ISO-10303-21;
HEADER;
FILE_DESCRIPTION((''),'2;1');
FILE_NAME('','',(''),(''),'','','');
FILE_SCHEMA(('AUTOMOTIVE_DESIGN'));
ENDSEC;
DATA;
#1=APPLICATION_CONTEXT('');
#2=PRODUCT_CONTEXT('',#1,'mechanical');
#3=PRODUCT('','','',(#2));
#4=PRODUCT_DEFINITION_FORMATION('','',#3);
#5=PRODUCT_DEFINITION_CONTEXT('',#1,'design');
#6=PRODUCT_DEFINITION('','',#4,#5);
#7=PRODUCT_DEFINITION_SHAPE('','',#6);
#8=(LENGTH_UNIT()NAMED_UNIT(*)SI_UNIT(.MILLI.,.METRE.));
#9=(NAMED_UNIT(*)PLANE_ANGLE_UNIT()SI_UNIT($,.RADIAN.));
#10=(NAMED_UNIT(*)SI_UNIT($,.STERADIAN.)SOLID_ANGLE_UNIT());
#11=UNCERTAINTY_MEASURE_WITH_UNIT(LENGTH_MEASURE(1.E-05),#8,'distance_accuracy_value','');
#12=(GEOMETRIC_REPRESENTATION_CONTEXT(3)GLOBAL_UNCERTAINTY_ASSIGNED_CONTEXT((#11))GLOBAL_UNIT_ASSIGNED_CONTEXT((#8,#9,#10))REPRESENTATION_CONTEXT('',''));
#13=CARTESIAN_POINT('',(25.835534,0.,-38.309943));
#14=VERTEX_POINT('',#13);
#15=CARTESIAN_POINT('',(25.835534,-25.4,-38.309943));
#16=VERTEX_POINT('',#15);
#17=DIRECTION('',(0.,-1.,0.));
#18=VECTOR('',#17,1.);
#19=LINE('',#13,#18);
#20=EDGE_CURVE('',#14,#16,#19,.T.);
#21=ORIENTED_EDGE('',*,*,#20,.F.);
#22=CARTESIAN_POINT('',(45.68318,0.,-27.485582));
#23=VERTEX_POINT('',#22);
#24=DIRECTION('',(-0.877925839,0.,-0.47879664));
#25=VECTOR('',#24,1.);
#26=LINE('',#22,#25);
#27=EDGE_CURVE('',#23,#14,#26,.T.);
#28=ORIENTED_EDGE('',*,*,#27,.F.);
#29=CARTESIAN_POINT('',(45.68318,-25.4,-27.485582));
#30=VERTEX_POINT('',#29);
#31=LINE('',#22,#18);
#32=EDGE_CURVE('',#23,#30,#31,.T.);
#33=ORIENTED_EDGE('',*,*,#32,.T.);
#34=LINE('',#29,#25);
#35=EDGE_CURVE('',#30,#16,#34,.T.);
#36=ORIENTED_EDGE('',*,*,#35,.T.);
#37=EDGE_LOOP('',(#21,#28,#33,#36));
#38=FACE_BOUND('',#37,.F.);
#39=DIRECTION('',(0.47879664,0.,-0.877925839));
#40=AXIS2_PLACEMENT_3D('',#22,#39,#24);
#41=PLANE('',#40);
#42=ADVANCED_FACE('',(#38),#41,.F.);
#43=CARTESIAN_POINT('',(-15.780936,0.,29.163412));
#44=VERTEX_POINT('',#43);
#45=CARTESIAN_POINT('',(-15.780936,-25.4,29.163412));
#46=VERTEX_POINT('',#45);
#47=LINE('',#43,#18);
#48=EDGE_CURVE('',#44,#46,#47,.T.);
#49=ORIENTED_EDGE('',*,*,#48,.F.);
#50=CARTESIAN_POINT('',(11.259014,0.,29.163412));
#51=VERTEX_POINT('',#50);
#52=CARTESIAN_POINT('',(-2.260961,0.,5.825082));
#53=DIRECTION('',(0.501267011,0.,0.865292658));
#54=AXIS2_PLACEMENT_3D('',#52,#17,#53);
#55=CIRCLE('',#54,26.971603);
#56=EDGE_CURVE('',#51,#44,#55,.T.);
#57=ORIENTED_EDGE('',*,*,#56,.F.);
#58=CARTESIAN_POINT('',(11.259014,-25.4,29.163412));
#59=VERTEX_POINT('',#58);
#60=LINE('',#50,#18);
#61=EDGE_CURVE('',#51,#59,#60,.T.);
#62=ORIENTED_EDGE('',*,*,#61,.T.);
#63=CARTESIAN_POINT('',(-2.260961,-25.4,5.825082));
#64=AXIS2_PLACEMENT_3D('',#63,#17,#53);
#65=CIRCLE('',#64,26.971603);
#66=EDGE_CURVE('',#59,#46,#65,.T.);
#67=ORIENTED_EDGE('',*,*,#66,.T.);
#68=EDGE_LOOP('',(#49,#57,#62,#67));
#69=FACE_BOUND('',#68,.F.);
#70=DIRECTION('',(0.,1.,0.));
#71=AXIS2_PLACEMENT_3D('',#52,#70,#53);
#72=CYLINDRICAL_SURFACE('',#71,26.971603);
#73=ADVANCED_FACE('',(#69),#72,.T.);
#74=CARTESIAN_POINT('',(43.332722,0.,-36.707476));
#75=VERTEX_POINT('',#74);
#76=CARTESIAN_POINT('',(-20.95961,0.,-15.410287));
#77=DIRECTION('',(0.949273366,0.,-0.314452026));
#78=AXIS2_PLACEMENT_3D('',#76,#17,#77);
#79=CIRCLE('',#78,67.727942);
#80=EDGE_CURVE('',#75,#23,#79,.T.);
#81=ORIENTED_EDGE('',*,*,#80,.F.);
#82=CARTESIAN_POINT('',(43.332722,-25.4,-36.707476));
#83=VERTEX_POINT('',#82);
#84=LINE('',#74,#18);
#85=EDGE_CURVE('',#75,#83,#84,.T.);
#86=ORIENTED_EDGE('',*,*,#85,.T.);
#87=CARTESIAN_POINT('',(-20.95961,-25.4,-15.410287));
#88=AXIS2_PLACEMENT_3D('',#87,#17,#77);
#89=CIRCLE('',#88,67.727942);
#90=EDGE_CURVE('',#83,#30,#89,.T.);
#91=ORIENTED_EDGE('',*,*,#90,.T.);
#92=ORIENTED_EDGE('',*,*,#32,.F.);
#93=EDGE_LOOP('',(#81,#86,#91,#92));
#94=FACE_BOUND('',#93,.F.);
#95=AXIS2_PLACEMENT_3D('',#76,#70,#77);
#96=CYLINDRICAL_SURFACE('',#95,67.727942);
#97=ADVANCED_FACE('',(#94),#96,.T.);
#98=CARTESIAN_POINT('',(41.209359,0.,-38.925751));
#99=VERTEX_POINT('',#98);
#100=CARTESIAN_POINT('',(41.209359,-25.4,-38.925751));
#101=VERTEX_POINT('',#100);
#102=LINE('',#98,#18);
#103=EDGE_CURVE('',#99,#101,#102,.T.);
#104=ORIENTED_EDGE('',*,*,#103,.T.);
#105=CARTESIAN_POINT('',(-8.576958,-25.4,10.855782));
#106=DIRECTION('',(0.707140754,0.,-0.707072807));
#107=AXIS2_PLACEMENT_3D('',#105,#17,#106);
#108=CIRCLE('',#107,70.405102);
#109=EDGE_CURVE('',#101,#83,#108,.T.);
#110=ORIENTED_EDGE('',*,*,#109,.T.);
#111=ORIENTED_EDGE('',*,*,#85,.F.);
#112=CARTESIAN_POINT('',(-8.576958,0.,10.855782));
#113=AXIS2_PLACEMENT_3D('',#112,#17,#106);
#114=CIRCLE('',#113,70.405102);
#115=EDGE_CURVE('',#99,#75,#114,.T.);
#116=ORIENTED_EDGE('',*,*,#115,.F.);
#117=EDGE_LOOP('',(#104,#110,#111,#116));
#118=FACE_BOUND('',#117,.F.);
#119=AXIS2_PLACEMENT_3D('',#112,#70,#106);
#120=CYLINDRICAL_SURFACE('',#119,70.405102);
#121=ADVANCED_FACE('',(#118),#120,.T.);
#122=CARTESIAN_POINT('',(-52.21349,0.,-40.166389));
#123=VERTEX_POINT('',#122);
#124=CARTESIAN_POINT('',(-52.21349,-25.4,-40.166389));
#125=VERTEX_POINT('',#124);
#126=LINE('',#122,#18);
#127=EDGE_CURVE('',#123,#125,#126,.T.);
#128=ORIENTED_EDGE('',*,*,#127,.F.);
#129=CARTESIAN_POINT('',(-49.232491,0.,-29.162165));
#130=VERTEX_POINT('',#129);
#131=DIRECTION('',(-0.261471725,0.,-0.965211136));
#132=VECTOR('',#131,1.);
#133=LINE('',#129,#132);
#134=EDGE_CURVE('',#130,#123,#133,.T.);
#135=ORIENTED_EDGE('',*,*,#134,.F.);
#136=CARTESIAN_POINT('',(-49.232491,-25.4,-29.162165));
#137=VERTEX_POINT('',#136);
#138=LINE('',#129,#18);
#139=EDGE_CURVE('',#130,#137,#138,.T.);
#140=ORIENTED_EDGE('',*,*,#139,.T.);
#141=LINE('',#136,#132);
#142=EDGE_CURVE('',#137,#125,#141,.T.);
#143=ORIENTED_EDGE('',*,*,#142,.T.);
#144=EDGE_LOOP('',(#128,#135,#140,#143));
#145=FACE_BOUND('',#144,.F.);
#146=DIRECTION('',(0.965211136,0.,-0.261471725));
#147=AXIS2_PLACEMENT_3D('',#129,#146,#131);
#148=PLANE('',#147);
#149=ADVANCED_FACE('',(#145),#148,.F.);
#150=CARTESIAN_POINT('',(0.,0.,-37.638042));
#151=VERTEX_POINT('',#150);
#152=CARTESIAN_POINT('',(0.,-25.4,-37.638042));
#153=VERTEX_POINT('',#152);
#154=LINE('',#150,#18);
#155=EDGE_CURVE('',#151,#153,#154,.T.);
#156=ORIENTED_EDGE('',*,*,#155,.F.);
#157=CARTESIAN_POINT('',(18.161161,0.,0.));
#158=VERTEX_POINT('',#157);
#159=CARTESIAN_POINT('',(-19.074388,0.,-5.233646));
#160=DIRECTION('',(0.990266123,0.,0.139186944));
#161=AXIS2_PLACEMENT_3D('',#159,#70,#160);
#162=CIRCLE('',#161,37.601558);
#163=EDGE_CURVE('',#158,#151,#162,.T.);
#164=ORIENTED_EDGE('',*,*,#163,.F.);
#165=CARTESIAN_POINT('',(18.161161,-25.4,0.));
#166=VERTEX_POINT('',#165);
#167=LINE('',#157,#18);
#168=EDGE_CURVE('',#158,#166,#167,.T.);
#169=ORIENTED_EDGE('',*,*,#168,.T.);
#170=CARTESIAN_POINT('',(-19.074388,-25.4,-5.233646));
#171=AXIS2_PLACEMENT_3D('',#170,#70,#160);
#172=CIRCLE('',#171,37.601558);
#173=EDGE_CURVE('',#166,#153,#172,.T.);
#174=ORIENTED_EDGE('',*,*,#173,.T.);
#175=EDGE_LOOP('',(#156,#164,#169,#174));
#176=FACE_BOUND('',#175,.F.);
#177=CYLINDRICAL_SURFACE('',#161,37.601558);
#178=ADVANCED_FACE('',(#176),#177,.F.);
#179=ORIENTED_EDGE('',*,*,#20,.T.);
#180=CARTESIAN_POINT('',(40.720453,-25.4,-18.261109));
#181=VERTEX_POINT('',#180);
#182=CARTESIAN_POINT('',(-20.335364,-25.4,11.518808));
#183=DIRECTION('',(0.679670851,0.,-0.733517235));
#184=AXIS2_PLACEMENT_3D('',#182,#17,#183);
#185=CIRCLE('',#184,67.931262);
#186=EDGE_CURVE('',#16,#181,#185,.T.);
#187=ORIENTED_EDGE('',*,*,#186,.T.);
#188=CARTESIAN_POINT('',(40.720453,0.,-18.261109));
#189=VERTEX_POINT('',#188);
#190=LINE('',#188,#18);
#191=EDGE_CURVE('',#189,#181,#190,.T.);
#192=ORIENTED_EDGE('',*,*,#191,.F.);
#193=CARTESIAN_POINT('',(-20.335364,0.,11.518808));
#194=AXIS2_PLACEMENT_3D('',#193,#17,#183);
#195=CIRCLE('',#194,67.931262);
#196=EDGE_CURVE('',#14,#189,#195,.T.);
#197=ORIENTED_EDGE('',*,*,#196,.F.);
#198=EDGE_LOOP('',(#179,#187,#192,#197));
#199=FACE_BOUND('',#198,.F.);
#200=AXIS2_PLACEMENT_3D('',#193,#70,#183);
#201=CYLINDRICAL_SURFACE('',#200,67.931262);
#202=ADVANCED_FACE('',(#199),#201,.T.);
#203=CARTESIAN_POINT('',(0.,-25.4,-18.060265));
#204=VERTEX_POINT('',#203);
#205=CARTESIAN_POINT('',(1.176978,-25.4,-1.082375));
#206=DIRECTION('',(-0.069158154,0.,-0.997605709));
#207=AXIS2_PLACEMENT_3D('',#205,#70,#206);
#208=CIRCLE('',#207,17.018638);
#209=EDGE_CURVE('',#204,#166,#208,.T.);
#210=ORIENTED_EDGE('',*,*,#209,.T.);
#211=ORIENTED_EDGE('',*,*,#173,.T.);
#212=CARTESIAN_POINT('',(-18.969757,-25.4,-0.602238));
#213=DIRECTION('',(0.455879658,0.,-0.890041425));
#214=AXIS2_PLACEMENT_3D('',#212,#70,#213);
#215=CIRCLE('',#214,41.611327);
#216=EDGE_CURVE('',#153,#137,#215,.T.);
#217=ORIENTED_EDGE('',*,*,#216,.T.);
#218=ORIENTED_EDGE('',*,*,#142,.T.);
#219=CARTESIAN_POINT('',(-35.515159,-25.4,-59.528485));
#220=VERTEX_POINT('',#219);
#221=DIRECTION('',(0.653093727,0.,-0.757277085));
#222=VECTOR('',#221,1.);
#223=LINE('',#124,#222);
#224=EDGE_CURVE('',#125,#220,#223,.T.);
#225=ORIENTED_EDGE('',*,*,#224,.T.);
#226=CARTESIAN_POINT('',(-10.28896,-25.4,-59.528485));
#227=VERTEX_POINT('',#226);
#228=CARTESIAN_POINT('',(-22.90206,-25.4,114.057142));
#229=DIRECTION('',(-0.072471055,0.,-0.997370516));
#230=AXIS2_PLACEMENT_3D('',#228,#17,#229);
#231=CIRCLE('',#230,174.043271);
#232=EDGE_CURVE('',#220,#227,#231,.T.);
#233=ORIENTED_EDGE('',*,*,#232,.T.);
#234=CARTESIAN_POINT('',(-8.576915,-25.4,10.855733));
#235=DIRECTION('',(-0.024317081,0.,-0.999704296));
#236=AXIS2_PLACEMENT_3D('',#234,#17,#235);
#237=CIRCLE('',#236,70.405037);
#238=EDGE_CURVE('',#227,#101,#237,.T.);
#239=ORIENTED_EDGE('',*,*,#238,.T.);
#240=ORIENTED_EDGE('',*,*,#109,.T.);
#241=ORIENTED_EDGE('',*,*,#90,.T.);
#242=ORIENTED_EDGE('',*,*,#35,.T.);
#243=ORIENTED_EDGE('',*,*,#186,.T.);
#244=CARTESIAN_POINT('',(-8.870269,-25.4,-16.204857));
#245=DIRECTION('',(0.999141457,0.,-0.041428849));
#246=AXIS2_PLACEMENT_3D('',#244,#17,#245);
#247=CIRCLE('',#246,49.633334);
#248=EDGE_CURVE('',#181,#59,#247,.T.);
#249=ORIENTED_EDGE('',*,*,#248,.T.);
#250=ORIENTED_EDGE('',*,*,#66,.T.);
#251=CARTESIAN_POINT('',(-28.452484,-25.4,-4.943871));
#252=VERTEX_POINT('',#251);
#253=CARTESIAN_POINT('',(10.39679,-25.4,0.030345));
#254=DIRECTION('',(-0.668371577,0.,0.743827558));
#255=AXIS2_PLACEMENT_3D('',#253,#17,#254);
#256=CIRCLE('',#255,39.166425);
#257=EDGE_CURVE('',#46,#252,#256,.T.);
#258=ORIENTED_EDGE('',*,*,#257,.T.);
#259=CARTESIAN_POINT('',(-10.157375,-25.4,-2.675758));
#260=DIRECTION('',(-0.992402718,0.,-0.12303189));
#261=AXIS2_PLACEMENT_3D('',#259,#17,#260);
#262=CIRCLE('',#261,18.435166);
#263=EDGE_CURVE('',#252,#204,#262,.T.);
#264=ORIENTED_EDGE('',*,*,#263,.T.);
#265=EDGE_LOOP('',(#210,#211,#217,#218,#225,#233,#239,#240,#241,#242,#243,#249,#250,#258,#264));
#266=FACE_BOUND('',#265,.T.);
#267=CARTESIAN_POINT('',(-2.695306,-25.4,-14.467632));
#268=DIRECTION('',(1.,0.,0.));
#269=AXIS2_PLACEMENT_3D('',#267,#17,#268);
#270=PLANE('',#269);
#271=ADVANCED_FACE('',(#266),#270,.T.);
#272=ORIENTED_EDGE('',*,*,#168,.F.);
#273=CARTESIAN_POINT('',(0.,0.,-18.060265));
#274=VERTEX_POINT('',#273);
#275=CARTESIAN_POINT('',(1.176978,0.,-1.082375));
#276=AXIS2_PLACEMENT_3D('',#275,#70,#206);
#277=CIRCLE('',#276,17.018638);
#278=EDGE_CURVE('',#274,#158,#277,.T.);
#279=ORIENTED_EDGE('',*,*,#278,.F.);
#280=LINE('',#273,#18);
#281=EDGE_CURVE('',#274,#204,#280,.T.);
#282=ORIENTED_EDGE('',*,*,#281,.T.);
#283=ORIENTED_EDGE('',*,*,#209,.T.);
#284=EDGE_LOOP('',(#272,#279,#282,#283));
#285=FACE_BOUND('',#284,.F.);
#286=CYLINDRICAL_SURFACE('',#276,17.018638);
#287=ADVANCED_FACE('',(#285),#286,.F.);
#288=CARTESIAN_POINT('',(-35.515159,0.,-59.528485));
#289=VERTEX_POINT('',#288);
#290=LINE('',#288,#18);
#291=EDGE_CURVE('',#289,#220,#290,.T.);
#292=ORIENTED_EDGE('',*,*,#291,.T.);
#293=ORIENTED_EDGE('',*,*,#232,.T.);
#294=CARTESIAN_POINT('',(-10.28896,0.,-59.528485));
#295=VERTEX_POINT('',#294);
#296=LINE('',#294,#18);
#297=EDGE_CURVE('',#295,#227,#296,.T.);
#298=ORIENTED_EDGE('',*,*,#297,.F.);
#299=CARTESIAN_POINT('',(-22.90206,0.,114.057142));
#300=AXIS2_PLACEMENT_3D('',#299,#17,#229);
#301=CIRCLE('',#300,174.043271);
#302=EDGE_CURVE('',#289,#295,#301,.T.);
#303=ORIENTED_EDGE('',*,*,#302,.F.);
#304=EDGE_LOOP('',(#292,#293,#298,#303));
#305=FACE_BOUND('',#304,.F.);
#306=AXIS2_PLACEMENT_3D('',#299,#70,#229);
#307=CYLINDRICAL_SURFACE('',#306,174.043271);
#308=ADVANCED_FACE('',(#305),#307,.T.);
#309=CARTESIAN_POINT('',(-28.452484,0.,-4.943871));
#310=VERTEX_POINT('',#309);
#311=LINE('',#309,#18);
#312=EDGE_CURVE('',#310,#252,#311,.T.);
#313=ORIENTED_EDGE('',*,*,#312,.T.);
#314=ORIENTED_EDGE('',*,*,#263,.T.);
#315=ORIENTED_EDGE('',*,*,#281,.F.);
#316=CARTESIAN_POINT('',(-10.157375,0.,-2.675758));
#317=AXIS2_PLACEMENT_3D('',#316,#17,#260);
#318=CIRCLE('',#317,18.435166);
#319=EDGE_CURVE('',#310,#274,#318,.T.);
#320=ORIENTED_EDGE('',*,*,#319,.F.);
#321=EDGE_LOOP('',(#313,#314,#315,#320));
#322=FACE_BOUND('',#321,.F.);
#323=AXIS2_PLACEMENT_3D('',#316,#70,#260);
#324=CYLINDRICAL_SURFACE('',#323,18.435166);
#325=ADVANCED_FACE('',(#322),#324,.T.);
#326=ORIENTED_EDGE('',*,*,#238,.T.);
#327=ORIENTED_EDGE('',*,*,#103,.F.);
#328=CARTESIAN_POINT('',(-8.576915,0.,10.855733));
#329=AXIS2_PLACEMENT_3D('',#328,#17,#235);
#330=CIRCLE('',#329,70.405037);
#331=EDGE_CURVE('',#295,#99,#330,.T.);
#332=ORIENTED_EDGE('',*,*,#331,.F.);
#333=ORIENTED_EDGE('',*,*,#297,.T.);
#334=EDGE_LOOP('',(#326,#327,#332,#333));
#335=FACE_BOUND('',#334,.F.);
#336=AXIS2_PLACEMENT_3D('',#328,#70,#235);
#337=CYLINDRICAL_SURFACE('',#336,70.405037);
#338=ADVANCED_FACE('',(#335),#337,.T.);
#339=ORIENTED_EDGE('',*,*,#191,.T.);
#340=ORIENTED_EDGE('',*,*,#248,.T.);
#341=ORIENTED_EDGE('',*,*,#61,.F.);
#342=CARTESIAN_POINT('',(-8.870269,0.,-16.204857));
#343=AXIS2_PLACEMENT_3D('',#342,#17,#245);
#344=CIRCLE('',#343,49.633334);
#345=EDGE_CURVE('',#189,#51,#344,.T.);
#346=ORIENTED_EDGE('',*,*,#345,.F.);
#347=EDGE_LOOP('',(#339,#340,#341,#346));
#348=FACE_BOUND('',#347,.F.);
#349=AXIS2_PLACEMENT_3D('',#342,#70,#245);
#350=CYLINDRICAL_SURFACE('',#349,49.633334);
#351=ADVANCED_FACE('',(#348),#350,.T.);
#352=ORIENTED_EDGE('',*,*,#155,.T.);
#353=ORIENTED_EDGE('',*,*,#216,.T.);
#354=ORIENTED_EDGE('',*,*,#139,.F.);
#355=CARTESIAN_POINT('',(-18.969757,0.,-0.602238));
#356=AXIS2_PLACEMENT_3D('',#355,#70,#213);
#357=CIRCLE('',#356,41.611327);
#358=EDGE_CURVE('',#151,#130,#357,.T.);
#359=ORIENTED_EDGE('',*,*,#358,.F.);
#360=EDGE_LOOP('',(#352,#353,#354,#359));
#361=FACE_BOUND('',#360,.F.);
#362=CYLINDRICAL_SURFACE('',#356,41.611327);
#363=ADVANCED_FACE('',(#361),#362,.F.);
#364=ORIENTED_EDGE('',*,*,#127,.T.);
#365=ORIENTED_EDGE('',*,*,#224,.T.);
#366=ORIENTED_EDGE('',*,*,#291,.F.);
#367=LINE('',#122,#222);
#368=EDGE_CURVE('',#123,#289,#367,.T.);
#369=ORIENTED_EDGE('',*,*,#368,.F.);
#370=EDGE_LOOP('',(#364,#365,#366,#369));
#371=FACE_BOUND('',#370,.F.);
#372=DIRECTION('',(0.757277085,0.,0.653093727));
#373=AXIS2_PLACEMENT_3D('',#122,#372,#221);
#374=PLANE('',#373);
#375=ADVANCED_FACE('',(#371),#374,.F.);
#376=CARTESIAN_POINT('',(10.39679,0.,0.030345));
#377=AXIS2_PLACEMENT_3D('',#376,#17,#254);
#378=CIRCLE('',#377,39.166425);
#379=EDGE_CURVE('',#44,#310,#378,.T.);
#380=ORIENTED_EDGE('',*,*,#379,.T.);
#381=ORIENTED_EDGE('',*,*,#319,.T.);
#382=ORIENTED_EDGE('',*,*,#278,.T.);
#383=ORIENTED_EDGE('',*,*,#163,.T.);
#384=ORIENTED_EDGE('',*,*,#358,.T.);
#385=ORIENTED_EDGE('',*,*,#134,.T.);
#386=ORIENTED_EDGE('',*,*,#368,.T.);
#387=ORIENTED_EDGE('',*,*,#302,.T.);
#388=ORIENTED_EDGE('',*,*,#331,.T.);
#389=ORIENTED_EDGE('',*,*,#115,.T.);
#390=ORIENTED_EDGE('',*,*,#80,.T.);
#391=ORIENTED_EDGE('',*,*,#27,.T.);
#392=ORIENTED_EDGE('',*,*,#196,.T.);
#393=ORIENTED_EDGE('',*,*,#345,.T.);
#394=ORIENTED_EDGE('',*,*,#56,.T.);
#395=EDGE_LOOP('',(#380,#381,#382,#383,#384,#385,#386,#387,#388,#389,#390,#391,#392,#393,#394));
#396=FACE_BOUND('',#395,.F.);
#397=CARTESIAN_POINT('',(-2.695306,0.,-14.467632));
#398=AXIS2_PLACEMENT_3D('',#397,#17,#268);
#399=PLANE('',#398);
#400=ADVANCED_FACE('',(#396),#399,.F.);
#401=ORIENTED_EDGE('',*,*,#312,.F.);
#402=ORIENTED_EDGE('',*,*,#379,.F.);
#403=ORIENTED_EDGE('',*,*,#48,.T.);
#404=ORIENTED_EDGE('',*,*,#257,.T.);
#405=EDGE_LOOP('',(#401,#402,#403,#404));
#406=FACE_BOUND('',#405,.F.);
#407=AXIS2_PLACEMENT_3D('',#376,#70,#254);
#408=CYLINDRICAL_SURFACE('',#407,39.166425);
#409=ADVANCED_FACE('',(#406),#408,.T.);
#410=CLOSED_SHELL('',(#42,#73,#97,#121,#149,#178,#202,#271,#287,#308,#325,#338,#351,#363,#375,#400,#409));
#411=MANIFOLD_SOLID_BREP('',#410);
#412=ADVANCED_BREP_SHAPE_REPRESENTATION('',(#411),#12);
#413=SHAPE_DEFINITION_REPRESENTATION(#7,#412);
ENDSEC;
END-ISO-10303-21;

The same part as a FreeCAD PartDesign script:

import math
import FreeCAD as App
import Part
import Sketcher
Q = App.Units.Quantity

doc = App.newDocument("Part")
params = doc.addObject("Spreadsheet::Sheet", "Params")
for row, (alias, value) in enumerate([
    ("pad1_length", "1 in"),
], start=1):
    params.set(f"A{row}", alias)
    params.set(f"B{row}", "=" + value)
    params.setAlias(f"B{row}", alias)

body = doc.addObject("PartDesign::Body", "Body")

# Sketch on XZ plane
sketch1 = body.newObject("Sketcher::SketchObject", "Sketch")
sketch1.AttachmentSupport = (doc.getObject("XZ_Plane"), [""])
sketch1.MapMode = "FlatFace"
sketch1.addGeometry([
    Part.ArcOfCircle(Part.Circle(App.Vector(10.39679, 0.030345, 0), App.Vector(0, 0, 1), 39.166425), math.radians(131.941506), math.radians(187.296387)),  # 0
    Part.ArcOfCircle(Part.Circle(App.Vector(-10.157375, -2.675758, 0), App.Vector(0, 0, 1), 18.435166), math.radians(-172.932886), math.radians(-56.565849)),  # 1
    Part.ArcOfCircle(Part.Circle(App.Vector(1.176978, -1.082375, 0), App.Vector(0, 0, 1), 17.018638), math.radians(3.646438), math.radians(266.034364)),  # 2
    Part.ArcOfCircle(Part.Circle(App.Vector(-19.074388, -5.233646, 0), App.Vector(0, 0, 1), 37.601558), math.radians(-59.517409), math.radians(8.000801)),  # 3
    Part.ArcOfCircle(Part.Circle(App.Vector(-18.969757, -0.602238, 0), App.Vector(0, 0, 1), 41.611327), math.radians(-136.658143), math.radians(-62.878453)),  # 4
    Part.LineSegment(App.Vector(-49.232491, -29.162165, 0), App.Vector(-52.21349, -40.166389, 0)),  # 5
    Part.LineSegment(App.Vector(-52.21349, -40.166389, 0), App.Vector(-35.515159, -59.528485, 0)),  # 6
    Part.ArcOfCircle(Part.Circle(App.Vector(-22.90206, 114.057142, 0), App.Vector(0, 0, 1), 174.043271), math.radians(-94.155929), math.radians(-85.844071)),  # 7
    Part.ArcOfCircle(Part.Circle(App.Vector(-8.576915, 10.855733, 0), App.Vector(0, 0, 1), 70.405037), math.radians(-91.393403), math.radians(-44.997243)),  # 8
    Part.ArcOfCircle(Part.Circle(App.Vector(-8.576958, 10.855782, 0), App.Vector(0, 0, 1), 70.405102), math.radians(-44.997247), math.radians(-42.49808)),  # 9
    Part.ArcOfCircle(Part.Circle(App.Vector(-20.95961, -15.410287, 0), App.Vector(0, 0, 1), 67.727942), math.radians(-18.327736), math.radians(-10.270242)),  # 10
    Part.LineSegment(App.Vector(45.68318, -27.485582, 0), App.Vector(25.835534, -38.309943, 0)),  # 11
    Part.ArcOfCircle(Part.Circle(App.Vector(-20.335364, 11.518808, 0), App.Vector(0, 0, 1), 67.931262), math.radians(-47.182072), math.radians(-26.000762)),  # 12
    Part.ArcOfCircle(Part.Circle(App.Vector(-8.870269, -16.204857, 0), App.Vector(0, 0, 1), 49.633334), math.radians(-2.374378), math.radians(66.073791)),  # 13
    Part.ArcOfCircle(Part.Circle(App.Vector(-2.260961, 5.825082, 0), App.Vector(0, 0, 1), 26.971603), math.radians(59.91614), math.radians(120.08386)),  # 14
], False)
sketch1.addConstraint([
    Sketcher.Constraint("Coincident", 0, 2, 1, 1),
    Sketcher.Constraint("Coincident", 1, 2, 2, 2),
    Sketcher.Constraint("Coincident", 2, 1, 3, 2),
    Sketcher.Constraint("Coincident", 3, 1, 4, 2),
    Sketcher.Constraint("Coincident", 4, 1, 5, 1),
    Sketcher.Constraint("Coincident", 5, 2, 6, 1),
    Sketcher.Constraint("Coincident", 6, 2, 7, 1),
    Sketcher.Constraint("Coincident", 7, 2, 8, 1),
    Sketcher.Constraint("Coincident", 8, 2, 9, 1),
    Sketcher.Constraint("Coincident", 9, 2, 10, 1),
    Sketcher.Constraint("Coincident", 10, 2, 11, 1),
    Sketcher.Constraint("Coincident", 11, 2, 12, 1),
    Sketcher.Constraint("Coincident", 12, 2, 13, 1),
    Sketcher.Constraint("Coincident", 13, 2, 14, 1),
    Sketcher.Constraint("Coincident", 14, 2, 0, 1),
    Sketcher.Constraint("PointOnObject", 1, 2, -2),
    Sketcher.Constraint("PointOnObject", 2, 1, -1),
    Sketcher.Constraint("PointOnObject", 3, 1, -2),
    Sketcher.Constraint("Radius", 7, Q("174.043271 mm")),
    Sketcher.Constraint("Radius", 12, Q("67.931262 mm")),
    Sketcher.Constraint("Radius", 0, Q("39.166425 mm")),
    Sketcher.Constraint("Radius", 1, Q("18.435166 mm")),
    Sketcher.Constraint("Radius", 2, Q("17.018638 mm")),
    Sketcher.Constraint("Radius", 3, Q("37.601558 mm")),
    Sketcher.Constraint("Radius", 4, Q("41.611327 mm")),
    Sketcher.Constraint("Radius", 8, Q("70.405037 mm")),
    Sketcher.Constraint("Radius", 9, Q("70.405102 mm")),
    Sketcher.Constraint("Radius", 10, Q("67.727942 mm")),
    Sketcher.Constraint("Radius", 13, Q("49.633334 mm")),
    Sketcher.Constraint("Radius", 14, Q("26.971603 mm")),
    Sketcher.Constraint("DistanceY", 1, 3, 7, 3, Q("116.732899 mm")),
    Sketcher.Constraint("DistanceX", 4, 3, 9, 3, Q("10.392799 mm")),
    Sketcher.Constraint("DistanceY", 13, 3, 1, 3, Q("13.529099 mm")),
    Sketcher.Constraint("DistanceY", 14, 3, 9, 3, Q("5.030701 mm")),
    Sketcher.Constraint("DistanceX", 5, 2, 4, 1, Q("2.980999 mm")),
    Sketcher.Constraint("DistanceY", 5, 2, 10, 3, Q("24.756102 mm")),
    Sketcher.Constraint("DistanceX", 5, 2, 3, 3, Q("33.139102 mm")),
    Sketcher.Constraint("DistanceX", 6, 2, 7, 2, Q("25.226199 mm")),
    Sketcher.Constraint("DistanceY", 11, 2, 3, 1, Q("0.671901 mm")),
    Sketcher.Constraint("Distance", 11, Q("22.607429 mm")),
    Sketcher.Constraint("DistanceX", -1, 1, 0, 3, Q("10.39679 mm")),
    Sketcher.Constraint("DistanceX", 3, 3, -1, 1, Q("19.074388 mm")),
    Sketcher.Constraint("DistanceX", 7, 3, -1, 1, Q("22.90206 mm")),
    Sketcher.Constraint("DistanceY", -1, 1, 7, 3, Q("114.057142 mm")),
    Sketcher.Constraint("DistanceX", 9, 3, -1, 1, Q("8.576958 mm")),
    Sketcher.Constraint("DistanceX", 10, 3, -1, 1, Q("20.95961 mm")),
    Sketcher.Constraint("DistanceY", -1, 1, 12, 3, Q("11.518808 mm")),
    Sketcher.Constraint("DistanceX", 13, 3, -1, 1, Q("8.870269 mm")),
    Sketcher.Constraint("DistanceX", 14, 3, -1, 1, Q("2.260961 mm")),
    Sketcher.Constraint("DistanceY", -1, 1, 14, 3, Q("5.825082 mm")),
    Sketcher.Constraint("DistanceY", 0, 2, -1, 1, Q("4.943871 mm")),
    Sketcher.Constraint("DistanceX", -1, 1, 2, 1, Q("18.161161 mm")),
    Sketcher.Constraint("DistanceY", 5, 2, -1, 1, Q("40.166389 mm")),
    Sketcher.Constraint("DistanceX", 6, 2, -1, 1, Q("35.515159 mm")),
    Sketcher.Constraint("DistanceX", -1, 1, 8, 2, Q("41.209359 mm")),
    Sketcher.Constraint("DistanceX", -1, 1, 10, 2, Q("45.68318 mm")),
    Sketcher.Constraint("DistanceY", -1, 1, 14, 2, Q("29.163412 mm")),
])
pad1 = body.newObject("PartDesign::Pad", "Pad")
pad1.Profile = sketch1
pad1.setExpression("Length", "Params.pad1_length")

doc.recompute()
